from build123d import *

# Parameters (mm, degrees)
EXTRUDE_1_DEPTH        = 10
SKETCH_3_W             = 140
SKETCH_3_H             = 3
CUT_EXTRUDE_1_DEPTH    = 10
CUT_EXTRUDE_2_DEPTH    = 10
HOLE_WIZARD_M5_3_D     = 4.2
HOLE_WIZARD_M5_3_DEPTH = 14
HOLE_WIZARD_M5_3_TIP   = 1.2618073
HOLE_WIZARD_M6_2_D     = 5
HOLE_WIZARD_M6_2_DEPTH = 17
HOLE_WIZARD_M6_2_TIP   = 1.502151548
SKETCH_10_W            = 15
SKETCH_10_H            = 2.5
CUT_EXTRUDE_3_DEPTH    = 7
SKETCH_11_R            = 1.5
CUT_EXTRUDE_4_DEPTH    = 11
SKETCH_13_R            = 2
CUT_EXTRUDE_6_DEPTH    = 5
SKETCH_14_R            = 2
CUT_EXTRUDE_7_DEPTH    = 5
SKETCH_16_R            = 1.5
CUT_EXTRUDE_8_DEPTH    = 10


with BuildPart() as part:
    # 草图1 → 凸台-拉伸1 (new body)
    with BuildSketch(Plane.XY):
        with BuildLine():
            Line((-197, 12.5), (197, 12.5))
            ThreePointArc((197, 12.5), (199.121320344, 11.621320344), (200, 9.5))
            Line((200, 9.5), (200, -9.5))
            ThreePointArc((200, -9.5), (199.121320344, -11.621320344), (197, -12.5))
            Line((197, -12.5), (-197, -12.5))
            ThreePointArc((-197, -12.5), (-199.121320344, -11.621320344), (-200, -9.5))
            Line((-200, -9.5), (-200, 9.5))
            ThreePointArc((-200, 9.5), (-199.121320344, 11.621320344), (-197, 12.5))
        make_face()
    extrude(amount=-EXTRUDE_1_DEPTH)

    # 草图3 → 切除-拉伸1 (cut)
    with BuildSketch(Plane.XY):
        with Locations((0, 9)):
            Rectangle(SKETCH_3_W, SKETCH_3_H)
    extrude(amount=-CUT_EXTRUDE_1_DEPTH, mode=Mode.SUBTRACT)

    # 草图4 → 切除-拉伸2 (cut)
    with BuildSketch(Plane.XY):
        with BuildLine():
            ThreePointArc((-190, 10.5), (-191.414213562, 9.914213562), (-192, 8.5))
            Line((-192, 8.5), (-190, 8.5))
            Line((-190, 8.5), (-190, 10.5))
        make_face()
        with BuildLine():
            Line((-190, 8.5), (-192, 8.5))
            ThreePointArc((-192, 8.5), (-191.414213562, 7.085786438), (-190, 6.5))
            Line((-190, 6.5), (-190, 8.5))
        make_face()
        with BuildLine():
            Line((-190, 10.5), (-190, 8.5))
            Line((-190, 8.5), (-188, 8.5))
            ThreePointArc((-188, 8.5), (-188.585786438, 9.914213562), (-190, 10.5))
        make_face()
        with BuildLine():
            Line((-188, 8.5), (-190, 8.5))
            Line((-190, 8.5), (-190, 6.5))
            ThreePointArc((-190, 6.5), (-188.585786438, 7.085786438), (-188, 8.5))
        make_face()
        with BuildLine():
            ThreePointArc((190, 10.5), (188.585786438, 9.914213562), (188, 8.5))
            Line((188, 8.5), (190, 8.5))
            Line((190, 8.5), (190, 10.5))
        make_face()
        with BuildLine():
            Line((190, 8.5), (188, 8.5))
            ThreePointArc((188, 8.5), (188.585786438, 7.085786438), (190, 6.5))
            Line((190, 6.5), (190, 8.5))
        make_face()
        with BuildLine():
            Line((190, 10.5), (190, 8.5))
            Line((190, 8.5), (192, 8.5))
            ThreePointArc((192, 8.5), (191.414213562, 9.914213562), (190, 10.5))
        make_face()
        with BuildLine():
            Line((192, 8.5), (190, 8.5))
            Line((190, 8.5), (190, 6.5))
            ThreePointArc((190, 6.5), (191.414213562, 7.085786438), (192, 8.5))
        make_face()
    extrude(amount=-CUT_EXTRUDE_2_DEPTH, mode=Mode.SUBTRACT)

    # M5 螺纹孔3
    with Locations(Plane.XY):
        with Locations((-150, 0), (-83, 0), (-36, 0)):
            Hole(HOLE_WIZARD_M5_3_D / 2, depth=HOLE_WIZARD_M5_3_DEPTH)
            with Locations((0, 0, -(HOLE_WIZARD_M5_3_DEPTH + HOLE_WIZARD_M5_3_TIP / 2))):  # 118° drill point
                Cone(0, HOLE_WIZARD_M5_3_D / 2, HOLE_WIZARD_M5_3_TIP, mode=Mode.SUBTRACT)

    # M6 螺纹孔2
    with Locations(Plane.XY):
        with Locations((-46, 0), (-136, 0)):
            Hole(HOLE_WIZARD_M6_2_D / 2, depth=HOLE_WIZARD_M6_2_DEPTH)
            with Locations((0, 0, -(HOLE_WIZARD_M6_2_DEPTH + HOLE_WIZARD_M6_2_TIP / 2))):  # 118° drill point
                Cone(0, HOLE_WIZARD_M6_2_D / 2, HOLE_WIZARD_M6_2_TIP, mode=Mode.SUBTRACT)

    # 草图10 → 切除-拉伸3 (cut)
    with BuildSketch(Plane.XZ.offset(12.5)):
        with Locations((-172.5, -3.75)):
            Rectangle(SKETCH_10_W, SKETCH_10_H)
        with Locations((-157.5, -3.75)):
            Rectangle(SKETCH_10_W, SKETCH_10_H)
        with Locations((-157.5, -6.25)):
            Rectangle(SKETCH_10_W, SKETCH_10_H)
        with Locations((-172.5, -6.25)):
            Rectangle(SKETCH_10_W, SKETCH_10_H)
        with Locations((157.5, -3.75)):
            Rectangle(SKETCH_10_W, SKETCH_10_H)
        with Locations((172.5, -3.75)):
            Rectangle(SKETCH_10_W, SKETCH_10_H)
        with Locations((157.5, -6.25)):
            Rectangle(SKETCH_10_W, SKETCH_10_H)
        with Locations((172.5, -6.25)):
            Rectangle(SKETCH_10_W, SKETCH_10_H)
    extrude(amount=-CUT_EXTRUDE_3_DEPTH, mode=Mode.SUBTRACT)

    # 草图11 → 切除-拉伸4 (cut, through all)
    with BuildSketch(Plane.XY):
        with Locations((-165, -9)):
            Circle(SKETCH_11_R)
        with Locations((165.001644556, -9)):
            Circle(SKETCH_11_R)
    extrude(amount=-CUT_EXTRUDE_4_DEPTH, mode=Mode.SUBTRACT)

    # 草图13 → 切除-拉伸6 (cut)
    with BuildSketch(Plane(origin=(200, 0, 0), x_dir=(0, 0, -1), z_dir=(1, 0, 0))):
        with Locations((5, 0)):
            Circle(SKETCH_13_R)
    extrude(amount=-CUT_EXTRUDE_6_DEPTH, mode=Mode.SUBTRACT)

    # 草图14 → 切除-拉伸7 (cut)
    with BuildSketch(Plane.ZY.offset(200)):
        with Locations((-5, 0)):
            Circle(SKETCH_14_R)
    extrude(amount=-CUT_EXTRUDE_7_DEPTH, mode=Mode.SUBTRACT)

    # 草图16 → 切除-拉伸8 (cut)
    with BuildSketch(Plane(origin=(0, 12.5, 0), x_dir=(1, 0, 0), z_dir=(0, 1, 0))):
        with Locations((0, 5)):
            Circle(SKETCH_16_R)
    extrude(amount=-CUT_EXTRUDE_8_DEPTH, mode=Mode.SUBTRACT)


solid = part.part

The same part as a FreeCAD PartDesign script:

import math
import FreeCAD as App
import Part
import Sketcher
from FreeCAD import Vector

doc = App.newDocument("Part")
body = doc.addObject("PartDesign::Body", "Body")

# Sketch on XY plane
sketch1 = doc.addObject("Sketcher::SketchObject", "Sketch")
body.addObject(sketch1)
sketch1.AttachmentSupport = (doc.XY_Plane, [""])
sketch1.MapMode = "FlatFace"
sketch1.addGeometry([
    Part.LineSegment(Vector(197, 12.5, 0), Vector(-197, 12.5, 0)),  # 0
    Part.ArcOfCircle(Part.Circle(Vector(-197, 9.5, 0), Vector(0, 0, 1), 3), math.radians(90), math.radians(180)),  # 1
    Part.LineSegment(Vector(-200, 9.5, 0), Vector(-200, -9.5, 0)),  # 2
    Part.ArcOfCircle(Part.Circle(Vector(-197, -9.5, 0), Vector(0, 0, 1), 3), math.radians(180), math.radians(270)),  # 3
    Part.LineSegment(Vector(-197, -12.5, 0), Vector(197, -12.5, 0)),  # 4
    Part.ArcOfCircle(Part.Circle(Vector(197, -9.5, 0), Vector(0, 0, 1), 3), math.radians(-90), math.radians(0)),  # 5
    Part.LineSegment(Vector(200, -9.5, 0), Vector(200, 9.5, 0)),  # 6
    Part.ArcOfCircle(Part.Circle(Vector(197, 9.5, 0), Vector(0, 0, 1), 3), math.radians(0), math.radians(90)),  # 7
], False)
sketch1.addConstraint([
    Sketcher.Constraint("Tangent", 0, 2, 1, 1),
    Sketcher.Constraint("Tangent", 1, 2, 2, 1),
    Sketcher.Constraint("Tangent", 2, 2, 3, 1),
    Sketcher.Constraint("Tangent", 3, 2, 4, 1),
    Sketcher.Constraint("Tangent", 4, 2, 5, 1),
    Sketcher.Constraint("Tangent", 5, 2, 6, 1),
    Sketcher.Constraint("Tangent", 6, 2, 7, 1),
    Sketcher.Constraint("Tangent", 7, 2, 0, 1),
    Sketcher.Constraint("Horizontal", 0),
    Sketcher.Constraint("Vertical", 2),
    Sketcher.Constraint("Horizontal", 4),
    Sketcher.Constraint("Vertical", 6),
    Sketcher.Constraint("Equal", 1, 3),
    Sketcher.Constraint("Equal", 3, 5),
    Sketcher.Constraint("Equal", 5, 7),
    Sketcher.Constraint("Symmetric", 1, 3, 5, 3, -1, 1),
    Sketcher.Constraint("Radius", 1, 3.0),
    Sketcher.Constraint("DistanceX", 0, 2, 0, 1, 394.0),
    Sketcher.Constraint("DistanceY", 2, 2, 2, 1, 19.0),
])
pad1 = doc.addObject("PartDesign::Pad", "Pad")
body.addObject(pad1)
pad1.Profile = sketch1
pad1.Length = 10
pad1.Reversed = True

# Sketch on XY plane
sketch2 = doc.addObject("Sketcher::SketchObject", "Sketch001")
body.addObject(sketch2)
sketch2.AttachmentSupport = (doc.XY_Plane, [""])
sketch2.MapMode = "FlatFace"
sketch2.addGeometry([
    Part.LineSegment(Vector(-70, 10.5, 0), Vector(-70, 7.5, 0)),
    Part.LineSegment(Vector(-70, 7.5, 0), Vector(70, 7.5, 0)),
    Part.LineSegment(Vector(70, 7.5, 0), Vector(70, 10.5, 0)),
    Part.LineSegment(Vector(70, 10.5, 0), Vector(-70, 10.5, 0)),
], False)
sketch2.addConstraint([
    Sketcher.Constraint("Coincident", 0, 2, 1, 1),
    Sketcher.Constraint("Coincident", 1, 2, 2, 1),
    Sketcher.Constraint("Coincident", 2, 2, 3, 1),
    Sketcher.Constraint("Coincident", 3, 2, 0, 1),
    Sketcher.Constraint("Vertical", 0),
    Sketcher.Constraint("Horizontal", 1),
    Sketcher.Constraint("Vertical", 2),
    Sketcher.Constraint("Horizontal", 3),
    Sketcher.Constraint("DistanceX", 1, 1, 1, 2, 140.0),
    Sketcher.Constraint("DistanceY", 0, 2, 0, 1, 3.0),
    Sketcher.Constraint("DistanceX", 0, 2, -1, 1, 70.0),
    Sketcher.Constraint("DistanceY", -1, 1, 0, 2, 7.5),
])
pocket1 = doc.addObject("PartDesign::Pocket", "Pocket")
body.addObject(pocket1)
pocket1.Profile = sketch2
pocket1.Length = 10

# Sketch on XY plane
sketch3 = doc.addObject("Sketcher::SketchObject", "Sketch002")
body.addObject(sketch3)
sketch3.AttachmentSupport = (doc.XY_Plane, [""])
sketch3.MapMode = "FlatFace"
sketch3.addGeometry([
    Part.ArcOfCircle(Part.Circle(Vector(-190, 8.5, 0), Vector(0, 0, 1), 2), math.radians(-180), math.radians(-90)),  # 0
    Part.ArcOfCircle(Part.Circle(Vector(-190, 8.5, 0), Vector(0, 0, 1), 2), math.radians(-90), math.radians(0)),  # 1
    Part.ArcOfCircle(Part.Circle(Vector(-190, 8.5, 0), Vector(0, 0, 1), 2), math.radians(0), math.radians(90)),  # 2
    Part.ArcOfCircle(Part.Circle(Vector(-190, 8.5, 0), Vector(0, 0, 1), 2), math.radians(90), math.radians(180)),  # 3
    Part.ArcOfCircle(Part.Circle(Vector(190, 8.5, 0), Vector(0, 0, 1), 2), math.radians(-180), math.radians(-90)),  # 4
    Part.ArcOfCircle(Part.Circle(Vector(190, 8.5, 0), Vector(0, 0, 1), 2), math.radians(-90), math.radians(0)),  # 5
    Part.ArcOfCircle(Part.Circle(Vector(190, 8.5, 0), Vector(0, 0, 1), 2), math.radians(0), math.radians(90)),  # 6
    Part.ArcOfCircle(Part.Circle(Vector(190, 8.5, 0), Vector(0, 0, 1), 2), math.radians(90), math.radians(180)),  # 7
], False)
sketch3.addConstraint([
    Sketcher.Constraint("Tangent", 0, 2, 1, 1),
    Sketcher.Constraint("Tangent", 1, 2, 2, 1),
    Sketcher.Constraint("Tangent", 2, 2, 3, 1),
    Sketcher.Constraint("Tangent", 3, 2, 0, 1),
    Sketcher.Constraint("Tangent", 4, 2, 5, 1),
    Sketcher.Constraint("Tangent", 5, 2, 6, 1),
    Sketcher.Constraint("Tangent", 6, 2, 7, 1),
    Sketcher.Constraint("Tangent", 7, 2, 4, 1),
    Sketcher.Constraint("Equal", 0, 1),
    Sketcher.Constraint("Equal", 3, 4),
    Sketcher.Constraint("Equal", 4, 5),
    Sketcher.Constraint("Symmetric", 0, 3, 4, 3, -2),
    Sketcher.Constraint("Horizontal", 7, 3, 1, 2),
    Sketcher.Constraint("Horizontal", 1, 2, 3, 2),
    Sketcher.Constraint("Horizontal", 3, 2, 5, 2),
    Sketcher.Constraint("Horizontal", 5, 2, 7, 2),
    Sketcher.Constraint("Vertical", 3, 3, 0, 2),
    Sketcher.Constraint("Vertical", 0, 2, 2, 2),
    Sketcher.Constraint("Vertical", 7, 3, 4, 2),
    Sketcher.Constraint("Vertical", 4, 2, 6, 2),
    Sketcher.Constraint("Radius", 0, 2.0),
    Sketcher.Constraint("DistanceX", 0, 3, -1, 1, 190.0),
    Sketcher.Constraint("DistanceY", -1, 1, 0, 3, 8.5),
])
pocket2 = doc.addObject("PartDesign::Pocket", "Pocket001")
body.addObject(pocket2)
pocket2.Profile = sketch3
pocket2.Length = 10

# Sketch on XY plane
sketch4 = doc.addObject("Sketcher::SketchObject", "Sketch003")
body.addObject(sketch4)
sketch4.AttachmentSupport = (doc.XY_Plane, [""])
sketch4.MapMode = "FlatFace"
sketch4.addGeometry([
    Part.Circle(Vector(-150, 0, 0), Vector(0, 0, 1), 2.1),
    Part.Circle(Vector(-83, 0, 0), Vector(0, 0, 1), 2.1),
    Part.Circle(Vector(-36, 0, 0), Vector(0, 0, 1), 2.1),
], False)
sketch4.addConstraint([
    Sketcher.Constraint("Equal", 0, 1),
    Sketcher.Constraint("Equal", 1, 2),
    Sketcher.Constraint("PointOnObject", 0, 3, -1),
    Sketcher.Constraint("PointOnObject", 1, 3, -1),
    Sketcher.Constraint("PointOnObject", 2, 3, -1),
    Sketcher.Constraint("Diameter", 0, 4.2),
    Sketcher.Constraint("DistanceX", 0, 3, -1, 1, 150.0),
    Sketcher.Constraint("DistanceX", 1, 3, -1, 1, 83.0),
    Sketcher.Constraint("DistanceX", 2, 3, -1, 1, 36.0),
])
doc.recompute()
hole = doc.addObject("PartDesign::Hole", "Hole")
body.addObject(hole)
hole.Profile = sketch4
hole.ThreadType = "None"
hole.Diameter = 4.2
hole.DepthType = "Dimension"
hole.Depth = 14
hole.DrillPoint = "Angled"
hole.DrillPointAngle = 118

# Sketch on XY plane
sketch5 = doc.addObject("Sketcher::SketchObject", "Sketch004")
body.addObject(sketch5)
sketch5.AttachmentSupport = (doc.XY_Plane, [""])
sketch5.MapMode = "FlatFace"
sketch5.addGeometry([
    Part.Circle(Vector(-46, 0, 0), Vector(0, 0, 1), 2.5),
    Part.Circle(Vector(-136, 0, 0), Vector(0, 0, 1), 2.5),
], False)
sketch5.addConstraint([
    Sketcher.Constraint("Equal", 0, 1),
    Sketcher.Constraint("PointOnObject", 0, 3, -1),
    Sketcher.Constraint("PointOnObject", 1, 3, -1),
    Sketcher.Constraint("Diameter", 0, 5.0),
    Sketcher.Constraint("DistanceX", 0, 3, -1, 1, 46.0),
    Sketcher.Constraint("DistanceX", 1, 3, -1, 1, 136.0),
])
doc.recompute()
hole2 = doc.addObject("PartDesign::Hole", "Hole001")
body.addObject(hole2)
hole2.Profile = sketch5
hole2.ThreadType = "None"
hole2.Diameter = 5
hole2.DepthType = "Dimension"
hole2.Depth = 17
hole2.DrillPoint = "Angled"
hole2.DrillPointAngle = 118

# Sketch on XZ plane
sketch6 = doc.addObject("Sketcher::SketchObject", "Sketch005")
body.addObject(sketch6)
sketch6.AttachmentSupport = (doc.XZ_Plane, [""])
sketch6.MapMode = "FlatFace"
sketch6.AttachmentOffset = App.Placement(Vector(0, 0, 12.5), App.Rotation())
sketch6.addGeometry([
    Part.LineSegment(Vector(-180, -2, 0), Vector(-180, -8, 0)),  # 0
    Part.LineSegment(Vector(-180, -8, 0), Vector(-150, -8, 0)),  # 1
    Part.LineSegment(Vector(-150, -8, 0), Vector(-150, -2, 0)),  # 2
    Part.LineSegment(Vector(-150, -2, 0), Vector(-180, -2, 0)),  # 3
    Part.LineSegment(Vector(150, -2, 0), Vector(150, -8, 0)),  # 4
    Part.LineSegment(Vector(150, -8, 0), Vector(180, -8, 0)),  # 5
    Part.LineSegment(Vector(180, -8, 0), Vector(180, -2, 0)),  # 6
    Part.LineSegment(Vector(180, -2, 0), Vector(150, -2, 0)),  # 7
], False)
sketch6.addConstraint([
    Sketcher.Constraint("Coincident", 0, 2, 1, 1),
    Sketcher.Constraint("Coincident", 1, 2, 2, 1),
    Sketcher.Constraint("Coincident", 2, 2, 3, 1),
    Sketcher.Constraint("Coincident", 3, 2, 0, 1),
    Sketcher.Constraint("Coincident", 4, 2, 5, 1),
    Sketcher.Constraint("Coincident", 5, 2, 6, 1),
    Sketcher.Constraint("Coincident", 6, 2, 7, 1),
    Sketcher.Constraint("Coincident", 7, 2, 4, 1),
    Sketcher.Constraint("Vertical", 0),
    Sketcher.Constraint("Horizontal", 1),
    Sketcher.Constraint("Vertical", 2),
    Sketcher.Constraint("Horizontal", 3),
    Sketcher.Constraint("Vertical", 4),
    Sketcher.Constraint("Horizontal", 5),
    Sketcher.Constraint("Vertical", 6),
    Sketcher.Constraint("Horizontal", 7),
    Sketcher.Constraint("Symmetric", 1, 2, 4, 2, -2),
    Sketcher.Constraint("Symmetric", 3, 2, 6, 2, -2),
    Sketcher.Constraint("DistanceX", 1, 1, 1, 2, 30.0),
    Sketcher.Constraint("DistanceY", 0, 2, 0, 1, 5.0),
    Sketcher.Constraint("DistanceX", 0, 2, -1, 1, 180.0),
    Sketcher.Constraint("DistanceY", 0, 2, -1, 1, 7.5),
])
pocket3 = doc.addObject("PartDesign::Pocket", "Pocket002")
body.addObject(pocket3)
pocket3.Profile = sketch6
pocket3.Length = 7

# Sketch on XY plane
sketch7 = doc.addObject("Sketcher::SketchObject", "Sketch006")
body.addObject(sketch7)
sketch7.AttachmentSupport = (doc.XY_Plane, [""])
sketch7.MapMode = "FlatFace"
sketch7.addGeometry([
    Part.Circle(Vector(-165, -9, 0), Vector(0, 0, 1), 1.5),
    Part.Circle(Vector(165, -9, 0), Vector(0, 0, 1), 1.5),
], False)
sketch7.addConstraint([
    Sketcher.Constraint("Equal", 0, 1),
    Sketcher.Constraint("Horizontal", 0, 3, 1, 3),
    Sketcher.Constraint("Diameter", 0, 3.0),
    Sketcher.Constraint("DistanceX", 0, 3, -1, 1, 165.0),
    Sketcher.Constraint("DistanceY", 0, 3, -1, 1, 9.0),
    Sketcher.Constraint("DistanceX", -1, 1, 1, 3, 165.001645),
])
pocket4 = doc.addObject("PartDesign::Pocket", "Pocket003")
body.addObject(pocket4)
pocket4.Profile = sketch7
pocket4.Type = "ThroughAll"

# Sketch on YZ plane
sketch8 = doc.addObject("Sketcher::SketchObject", "Sketch007")
body.addObject(sketch8)
sketch8.AttachmentSupport = (doc.YZ_Plane, [""])
sketch8.MapMode = "FlatFace"
sketch8.AttachmentOffset = App.Placement(Vector(0, 0, 200), App.Rotation())
sketch8.addGeometry(Part.Circle(Vector(0, -5, 0), Vector(0, 0, 1), 2), False)
sketch8.addConstraint([
    Sketcher.Constraint("PointOnObject", 0, 3, -2),
    Sketcher.Constraint("Diameter", 0, 4.0),
    Sketcher.Constraint("DistanceY", 0, 3, -1, 1, 5.0),
])
pocket5 = doc.addObject("PartDesign::Pocket", "Pocket004")
body.addObject(pocket5)
pocket5.Profile = sketch8
pocket5.Length = 5

# Sketch on YZ plane
sketch9 = doc.addObject("Sketcher::SketchObject", "Sketch008")
body.addObject(sketch9)
sketch9.AttachmentSupport = (doc.YZ_Plane, [""])
sketch9.MapMode = "FlatFace"
sketch9.AttachmentOffset = App.Placement(Vector(0, 0, -200), App.Rotation())
sketch9.addGeometry(Part.Circle(Vector(0, -5, 0), Vector(0, 0, 1), 2), False)
sketch9.addConstraint([
    Sketcher.Constraint("PointOnObject", 0, 3, -2),
    Sketcher.Constraint("Diameter", 0, 4.0),
    Sketcher.Constraint("DistanceY", 0, 3, -1, 1, 5.0),
])
pocket6 = doc.addObject("PartDesign::Pocket", "Pocket005")
body.addObject(pocket6)
pocket6.Profile = sketch9
pocket6.Length = 5
pocket6.Reversed = True

# Sketch on XZ plane
sketch10 = doc.addObject("Sketcher::SketchObject", "Sketch009")
body.addObject(sketch10)
sketch10.AttachmentSupport = (doc.XZ_Plane, [""])
sketch10.MapMode = "FlatFace"
sketch10.AttachmentOffset = App.Placement(Vector(0, 0, -12.5), App.Rotation())
sketch10.addGeometry(Part.Circle(Vector(0, -5, 0), Vector(0, 0, 1), 1.5), False)
sketch10.addConstraint([
    Sketcher.Constraint("PointOnObject", 0, 3, -2),
    Sketcher.Constraint("Diameter", 0, 3.0),
    Sketcher.Constraint("DistanceY", 0, 3, -1, 1, 5.0),
])
pocket7 = doc.addObject("PartDesign::Pocket", "Pocket006")
body.addObject(pocket7)
pocket7.Profile = sketch10
pocket7.Length = 10
pocket7.Reversed = True

doc.recompute()
